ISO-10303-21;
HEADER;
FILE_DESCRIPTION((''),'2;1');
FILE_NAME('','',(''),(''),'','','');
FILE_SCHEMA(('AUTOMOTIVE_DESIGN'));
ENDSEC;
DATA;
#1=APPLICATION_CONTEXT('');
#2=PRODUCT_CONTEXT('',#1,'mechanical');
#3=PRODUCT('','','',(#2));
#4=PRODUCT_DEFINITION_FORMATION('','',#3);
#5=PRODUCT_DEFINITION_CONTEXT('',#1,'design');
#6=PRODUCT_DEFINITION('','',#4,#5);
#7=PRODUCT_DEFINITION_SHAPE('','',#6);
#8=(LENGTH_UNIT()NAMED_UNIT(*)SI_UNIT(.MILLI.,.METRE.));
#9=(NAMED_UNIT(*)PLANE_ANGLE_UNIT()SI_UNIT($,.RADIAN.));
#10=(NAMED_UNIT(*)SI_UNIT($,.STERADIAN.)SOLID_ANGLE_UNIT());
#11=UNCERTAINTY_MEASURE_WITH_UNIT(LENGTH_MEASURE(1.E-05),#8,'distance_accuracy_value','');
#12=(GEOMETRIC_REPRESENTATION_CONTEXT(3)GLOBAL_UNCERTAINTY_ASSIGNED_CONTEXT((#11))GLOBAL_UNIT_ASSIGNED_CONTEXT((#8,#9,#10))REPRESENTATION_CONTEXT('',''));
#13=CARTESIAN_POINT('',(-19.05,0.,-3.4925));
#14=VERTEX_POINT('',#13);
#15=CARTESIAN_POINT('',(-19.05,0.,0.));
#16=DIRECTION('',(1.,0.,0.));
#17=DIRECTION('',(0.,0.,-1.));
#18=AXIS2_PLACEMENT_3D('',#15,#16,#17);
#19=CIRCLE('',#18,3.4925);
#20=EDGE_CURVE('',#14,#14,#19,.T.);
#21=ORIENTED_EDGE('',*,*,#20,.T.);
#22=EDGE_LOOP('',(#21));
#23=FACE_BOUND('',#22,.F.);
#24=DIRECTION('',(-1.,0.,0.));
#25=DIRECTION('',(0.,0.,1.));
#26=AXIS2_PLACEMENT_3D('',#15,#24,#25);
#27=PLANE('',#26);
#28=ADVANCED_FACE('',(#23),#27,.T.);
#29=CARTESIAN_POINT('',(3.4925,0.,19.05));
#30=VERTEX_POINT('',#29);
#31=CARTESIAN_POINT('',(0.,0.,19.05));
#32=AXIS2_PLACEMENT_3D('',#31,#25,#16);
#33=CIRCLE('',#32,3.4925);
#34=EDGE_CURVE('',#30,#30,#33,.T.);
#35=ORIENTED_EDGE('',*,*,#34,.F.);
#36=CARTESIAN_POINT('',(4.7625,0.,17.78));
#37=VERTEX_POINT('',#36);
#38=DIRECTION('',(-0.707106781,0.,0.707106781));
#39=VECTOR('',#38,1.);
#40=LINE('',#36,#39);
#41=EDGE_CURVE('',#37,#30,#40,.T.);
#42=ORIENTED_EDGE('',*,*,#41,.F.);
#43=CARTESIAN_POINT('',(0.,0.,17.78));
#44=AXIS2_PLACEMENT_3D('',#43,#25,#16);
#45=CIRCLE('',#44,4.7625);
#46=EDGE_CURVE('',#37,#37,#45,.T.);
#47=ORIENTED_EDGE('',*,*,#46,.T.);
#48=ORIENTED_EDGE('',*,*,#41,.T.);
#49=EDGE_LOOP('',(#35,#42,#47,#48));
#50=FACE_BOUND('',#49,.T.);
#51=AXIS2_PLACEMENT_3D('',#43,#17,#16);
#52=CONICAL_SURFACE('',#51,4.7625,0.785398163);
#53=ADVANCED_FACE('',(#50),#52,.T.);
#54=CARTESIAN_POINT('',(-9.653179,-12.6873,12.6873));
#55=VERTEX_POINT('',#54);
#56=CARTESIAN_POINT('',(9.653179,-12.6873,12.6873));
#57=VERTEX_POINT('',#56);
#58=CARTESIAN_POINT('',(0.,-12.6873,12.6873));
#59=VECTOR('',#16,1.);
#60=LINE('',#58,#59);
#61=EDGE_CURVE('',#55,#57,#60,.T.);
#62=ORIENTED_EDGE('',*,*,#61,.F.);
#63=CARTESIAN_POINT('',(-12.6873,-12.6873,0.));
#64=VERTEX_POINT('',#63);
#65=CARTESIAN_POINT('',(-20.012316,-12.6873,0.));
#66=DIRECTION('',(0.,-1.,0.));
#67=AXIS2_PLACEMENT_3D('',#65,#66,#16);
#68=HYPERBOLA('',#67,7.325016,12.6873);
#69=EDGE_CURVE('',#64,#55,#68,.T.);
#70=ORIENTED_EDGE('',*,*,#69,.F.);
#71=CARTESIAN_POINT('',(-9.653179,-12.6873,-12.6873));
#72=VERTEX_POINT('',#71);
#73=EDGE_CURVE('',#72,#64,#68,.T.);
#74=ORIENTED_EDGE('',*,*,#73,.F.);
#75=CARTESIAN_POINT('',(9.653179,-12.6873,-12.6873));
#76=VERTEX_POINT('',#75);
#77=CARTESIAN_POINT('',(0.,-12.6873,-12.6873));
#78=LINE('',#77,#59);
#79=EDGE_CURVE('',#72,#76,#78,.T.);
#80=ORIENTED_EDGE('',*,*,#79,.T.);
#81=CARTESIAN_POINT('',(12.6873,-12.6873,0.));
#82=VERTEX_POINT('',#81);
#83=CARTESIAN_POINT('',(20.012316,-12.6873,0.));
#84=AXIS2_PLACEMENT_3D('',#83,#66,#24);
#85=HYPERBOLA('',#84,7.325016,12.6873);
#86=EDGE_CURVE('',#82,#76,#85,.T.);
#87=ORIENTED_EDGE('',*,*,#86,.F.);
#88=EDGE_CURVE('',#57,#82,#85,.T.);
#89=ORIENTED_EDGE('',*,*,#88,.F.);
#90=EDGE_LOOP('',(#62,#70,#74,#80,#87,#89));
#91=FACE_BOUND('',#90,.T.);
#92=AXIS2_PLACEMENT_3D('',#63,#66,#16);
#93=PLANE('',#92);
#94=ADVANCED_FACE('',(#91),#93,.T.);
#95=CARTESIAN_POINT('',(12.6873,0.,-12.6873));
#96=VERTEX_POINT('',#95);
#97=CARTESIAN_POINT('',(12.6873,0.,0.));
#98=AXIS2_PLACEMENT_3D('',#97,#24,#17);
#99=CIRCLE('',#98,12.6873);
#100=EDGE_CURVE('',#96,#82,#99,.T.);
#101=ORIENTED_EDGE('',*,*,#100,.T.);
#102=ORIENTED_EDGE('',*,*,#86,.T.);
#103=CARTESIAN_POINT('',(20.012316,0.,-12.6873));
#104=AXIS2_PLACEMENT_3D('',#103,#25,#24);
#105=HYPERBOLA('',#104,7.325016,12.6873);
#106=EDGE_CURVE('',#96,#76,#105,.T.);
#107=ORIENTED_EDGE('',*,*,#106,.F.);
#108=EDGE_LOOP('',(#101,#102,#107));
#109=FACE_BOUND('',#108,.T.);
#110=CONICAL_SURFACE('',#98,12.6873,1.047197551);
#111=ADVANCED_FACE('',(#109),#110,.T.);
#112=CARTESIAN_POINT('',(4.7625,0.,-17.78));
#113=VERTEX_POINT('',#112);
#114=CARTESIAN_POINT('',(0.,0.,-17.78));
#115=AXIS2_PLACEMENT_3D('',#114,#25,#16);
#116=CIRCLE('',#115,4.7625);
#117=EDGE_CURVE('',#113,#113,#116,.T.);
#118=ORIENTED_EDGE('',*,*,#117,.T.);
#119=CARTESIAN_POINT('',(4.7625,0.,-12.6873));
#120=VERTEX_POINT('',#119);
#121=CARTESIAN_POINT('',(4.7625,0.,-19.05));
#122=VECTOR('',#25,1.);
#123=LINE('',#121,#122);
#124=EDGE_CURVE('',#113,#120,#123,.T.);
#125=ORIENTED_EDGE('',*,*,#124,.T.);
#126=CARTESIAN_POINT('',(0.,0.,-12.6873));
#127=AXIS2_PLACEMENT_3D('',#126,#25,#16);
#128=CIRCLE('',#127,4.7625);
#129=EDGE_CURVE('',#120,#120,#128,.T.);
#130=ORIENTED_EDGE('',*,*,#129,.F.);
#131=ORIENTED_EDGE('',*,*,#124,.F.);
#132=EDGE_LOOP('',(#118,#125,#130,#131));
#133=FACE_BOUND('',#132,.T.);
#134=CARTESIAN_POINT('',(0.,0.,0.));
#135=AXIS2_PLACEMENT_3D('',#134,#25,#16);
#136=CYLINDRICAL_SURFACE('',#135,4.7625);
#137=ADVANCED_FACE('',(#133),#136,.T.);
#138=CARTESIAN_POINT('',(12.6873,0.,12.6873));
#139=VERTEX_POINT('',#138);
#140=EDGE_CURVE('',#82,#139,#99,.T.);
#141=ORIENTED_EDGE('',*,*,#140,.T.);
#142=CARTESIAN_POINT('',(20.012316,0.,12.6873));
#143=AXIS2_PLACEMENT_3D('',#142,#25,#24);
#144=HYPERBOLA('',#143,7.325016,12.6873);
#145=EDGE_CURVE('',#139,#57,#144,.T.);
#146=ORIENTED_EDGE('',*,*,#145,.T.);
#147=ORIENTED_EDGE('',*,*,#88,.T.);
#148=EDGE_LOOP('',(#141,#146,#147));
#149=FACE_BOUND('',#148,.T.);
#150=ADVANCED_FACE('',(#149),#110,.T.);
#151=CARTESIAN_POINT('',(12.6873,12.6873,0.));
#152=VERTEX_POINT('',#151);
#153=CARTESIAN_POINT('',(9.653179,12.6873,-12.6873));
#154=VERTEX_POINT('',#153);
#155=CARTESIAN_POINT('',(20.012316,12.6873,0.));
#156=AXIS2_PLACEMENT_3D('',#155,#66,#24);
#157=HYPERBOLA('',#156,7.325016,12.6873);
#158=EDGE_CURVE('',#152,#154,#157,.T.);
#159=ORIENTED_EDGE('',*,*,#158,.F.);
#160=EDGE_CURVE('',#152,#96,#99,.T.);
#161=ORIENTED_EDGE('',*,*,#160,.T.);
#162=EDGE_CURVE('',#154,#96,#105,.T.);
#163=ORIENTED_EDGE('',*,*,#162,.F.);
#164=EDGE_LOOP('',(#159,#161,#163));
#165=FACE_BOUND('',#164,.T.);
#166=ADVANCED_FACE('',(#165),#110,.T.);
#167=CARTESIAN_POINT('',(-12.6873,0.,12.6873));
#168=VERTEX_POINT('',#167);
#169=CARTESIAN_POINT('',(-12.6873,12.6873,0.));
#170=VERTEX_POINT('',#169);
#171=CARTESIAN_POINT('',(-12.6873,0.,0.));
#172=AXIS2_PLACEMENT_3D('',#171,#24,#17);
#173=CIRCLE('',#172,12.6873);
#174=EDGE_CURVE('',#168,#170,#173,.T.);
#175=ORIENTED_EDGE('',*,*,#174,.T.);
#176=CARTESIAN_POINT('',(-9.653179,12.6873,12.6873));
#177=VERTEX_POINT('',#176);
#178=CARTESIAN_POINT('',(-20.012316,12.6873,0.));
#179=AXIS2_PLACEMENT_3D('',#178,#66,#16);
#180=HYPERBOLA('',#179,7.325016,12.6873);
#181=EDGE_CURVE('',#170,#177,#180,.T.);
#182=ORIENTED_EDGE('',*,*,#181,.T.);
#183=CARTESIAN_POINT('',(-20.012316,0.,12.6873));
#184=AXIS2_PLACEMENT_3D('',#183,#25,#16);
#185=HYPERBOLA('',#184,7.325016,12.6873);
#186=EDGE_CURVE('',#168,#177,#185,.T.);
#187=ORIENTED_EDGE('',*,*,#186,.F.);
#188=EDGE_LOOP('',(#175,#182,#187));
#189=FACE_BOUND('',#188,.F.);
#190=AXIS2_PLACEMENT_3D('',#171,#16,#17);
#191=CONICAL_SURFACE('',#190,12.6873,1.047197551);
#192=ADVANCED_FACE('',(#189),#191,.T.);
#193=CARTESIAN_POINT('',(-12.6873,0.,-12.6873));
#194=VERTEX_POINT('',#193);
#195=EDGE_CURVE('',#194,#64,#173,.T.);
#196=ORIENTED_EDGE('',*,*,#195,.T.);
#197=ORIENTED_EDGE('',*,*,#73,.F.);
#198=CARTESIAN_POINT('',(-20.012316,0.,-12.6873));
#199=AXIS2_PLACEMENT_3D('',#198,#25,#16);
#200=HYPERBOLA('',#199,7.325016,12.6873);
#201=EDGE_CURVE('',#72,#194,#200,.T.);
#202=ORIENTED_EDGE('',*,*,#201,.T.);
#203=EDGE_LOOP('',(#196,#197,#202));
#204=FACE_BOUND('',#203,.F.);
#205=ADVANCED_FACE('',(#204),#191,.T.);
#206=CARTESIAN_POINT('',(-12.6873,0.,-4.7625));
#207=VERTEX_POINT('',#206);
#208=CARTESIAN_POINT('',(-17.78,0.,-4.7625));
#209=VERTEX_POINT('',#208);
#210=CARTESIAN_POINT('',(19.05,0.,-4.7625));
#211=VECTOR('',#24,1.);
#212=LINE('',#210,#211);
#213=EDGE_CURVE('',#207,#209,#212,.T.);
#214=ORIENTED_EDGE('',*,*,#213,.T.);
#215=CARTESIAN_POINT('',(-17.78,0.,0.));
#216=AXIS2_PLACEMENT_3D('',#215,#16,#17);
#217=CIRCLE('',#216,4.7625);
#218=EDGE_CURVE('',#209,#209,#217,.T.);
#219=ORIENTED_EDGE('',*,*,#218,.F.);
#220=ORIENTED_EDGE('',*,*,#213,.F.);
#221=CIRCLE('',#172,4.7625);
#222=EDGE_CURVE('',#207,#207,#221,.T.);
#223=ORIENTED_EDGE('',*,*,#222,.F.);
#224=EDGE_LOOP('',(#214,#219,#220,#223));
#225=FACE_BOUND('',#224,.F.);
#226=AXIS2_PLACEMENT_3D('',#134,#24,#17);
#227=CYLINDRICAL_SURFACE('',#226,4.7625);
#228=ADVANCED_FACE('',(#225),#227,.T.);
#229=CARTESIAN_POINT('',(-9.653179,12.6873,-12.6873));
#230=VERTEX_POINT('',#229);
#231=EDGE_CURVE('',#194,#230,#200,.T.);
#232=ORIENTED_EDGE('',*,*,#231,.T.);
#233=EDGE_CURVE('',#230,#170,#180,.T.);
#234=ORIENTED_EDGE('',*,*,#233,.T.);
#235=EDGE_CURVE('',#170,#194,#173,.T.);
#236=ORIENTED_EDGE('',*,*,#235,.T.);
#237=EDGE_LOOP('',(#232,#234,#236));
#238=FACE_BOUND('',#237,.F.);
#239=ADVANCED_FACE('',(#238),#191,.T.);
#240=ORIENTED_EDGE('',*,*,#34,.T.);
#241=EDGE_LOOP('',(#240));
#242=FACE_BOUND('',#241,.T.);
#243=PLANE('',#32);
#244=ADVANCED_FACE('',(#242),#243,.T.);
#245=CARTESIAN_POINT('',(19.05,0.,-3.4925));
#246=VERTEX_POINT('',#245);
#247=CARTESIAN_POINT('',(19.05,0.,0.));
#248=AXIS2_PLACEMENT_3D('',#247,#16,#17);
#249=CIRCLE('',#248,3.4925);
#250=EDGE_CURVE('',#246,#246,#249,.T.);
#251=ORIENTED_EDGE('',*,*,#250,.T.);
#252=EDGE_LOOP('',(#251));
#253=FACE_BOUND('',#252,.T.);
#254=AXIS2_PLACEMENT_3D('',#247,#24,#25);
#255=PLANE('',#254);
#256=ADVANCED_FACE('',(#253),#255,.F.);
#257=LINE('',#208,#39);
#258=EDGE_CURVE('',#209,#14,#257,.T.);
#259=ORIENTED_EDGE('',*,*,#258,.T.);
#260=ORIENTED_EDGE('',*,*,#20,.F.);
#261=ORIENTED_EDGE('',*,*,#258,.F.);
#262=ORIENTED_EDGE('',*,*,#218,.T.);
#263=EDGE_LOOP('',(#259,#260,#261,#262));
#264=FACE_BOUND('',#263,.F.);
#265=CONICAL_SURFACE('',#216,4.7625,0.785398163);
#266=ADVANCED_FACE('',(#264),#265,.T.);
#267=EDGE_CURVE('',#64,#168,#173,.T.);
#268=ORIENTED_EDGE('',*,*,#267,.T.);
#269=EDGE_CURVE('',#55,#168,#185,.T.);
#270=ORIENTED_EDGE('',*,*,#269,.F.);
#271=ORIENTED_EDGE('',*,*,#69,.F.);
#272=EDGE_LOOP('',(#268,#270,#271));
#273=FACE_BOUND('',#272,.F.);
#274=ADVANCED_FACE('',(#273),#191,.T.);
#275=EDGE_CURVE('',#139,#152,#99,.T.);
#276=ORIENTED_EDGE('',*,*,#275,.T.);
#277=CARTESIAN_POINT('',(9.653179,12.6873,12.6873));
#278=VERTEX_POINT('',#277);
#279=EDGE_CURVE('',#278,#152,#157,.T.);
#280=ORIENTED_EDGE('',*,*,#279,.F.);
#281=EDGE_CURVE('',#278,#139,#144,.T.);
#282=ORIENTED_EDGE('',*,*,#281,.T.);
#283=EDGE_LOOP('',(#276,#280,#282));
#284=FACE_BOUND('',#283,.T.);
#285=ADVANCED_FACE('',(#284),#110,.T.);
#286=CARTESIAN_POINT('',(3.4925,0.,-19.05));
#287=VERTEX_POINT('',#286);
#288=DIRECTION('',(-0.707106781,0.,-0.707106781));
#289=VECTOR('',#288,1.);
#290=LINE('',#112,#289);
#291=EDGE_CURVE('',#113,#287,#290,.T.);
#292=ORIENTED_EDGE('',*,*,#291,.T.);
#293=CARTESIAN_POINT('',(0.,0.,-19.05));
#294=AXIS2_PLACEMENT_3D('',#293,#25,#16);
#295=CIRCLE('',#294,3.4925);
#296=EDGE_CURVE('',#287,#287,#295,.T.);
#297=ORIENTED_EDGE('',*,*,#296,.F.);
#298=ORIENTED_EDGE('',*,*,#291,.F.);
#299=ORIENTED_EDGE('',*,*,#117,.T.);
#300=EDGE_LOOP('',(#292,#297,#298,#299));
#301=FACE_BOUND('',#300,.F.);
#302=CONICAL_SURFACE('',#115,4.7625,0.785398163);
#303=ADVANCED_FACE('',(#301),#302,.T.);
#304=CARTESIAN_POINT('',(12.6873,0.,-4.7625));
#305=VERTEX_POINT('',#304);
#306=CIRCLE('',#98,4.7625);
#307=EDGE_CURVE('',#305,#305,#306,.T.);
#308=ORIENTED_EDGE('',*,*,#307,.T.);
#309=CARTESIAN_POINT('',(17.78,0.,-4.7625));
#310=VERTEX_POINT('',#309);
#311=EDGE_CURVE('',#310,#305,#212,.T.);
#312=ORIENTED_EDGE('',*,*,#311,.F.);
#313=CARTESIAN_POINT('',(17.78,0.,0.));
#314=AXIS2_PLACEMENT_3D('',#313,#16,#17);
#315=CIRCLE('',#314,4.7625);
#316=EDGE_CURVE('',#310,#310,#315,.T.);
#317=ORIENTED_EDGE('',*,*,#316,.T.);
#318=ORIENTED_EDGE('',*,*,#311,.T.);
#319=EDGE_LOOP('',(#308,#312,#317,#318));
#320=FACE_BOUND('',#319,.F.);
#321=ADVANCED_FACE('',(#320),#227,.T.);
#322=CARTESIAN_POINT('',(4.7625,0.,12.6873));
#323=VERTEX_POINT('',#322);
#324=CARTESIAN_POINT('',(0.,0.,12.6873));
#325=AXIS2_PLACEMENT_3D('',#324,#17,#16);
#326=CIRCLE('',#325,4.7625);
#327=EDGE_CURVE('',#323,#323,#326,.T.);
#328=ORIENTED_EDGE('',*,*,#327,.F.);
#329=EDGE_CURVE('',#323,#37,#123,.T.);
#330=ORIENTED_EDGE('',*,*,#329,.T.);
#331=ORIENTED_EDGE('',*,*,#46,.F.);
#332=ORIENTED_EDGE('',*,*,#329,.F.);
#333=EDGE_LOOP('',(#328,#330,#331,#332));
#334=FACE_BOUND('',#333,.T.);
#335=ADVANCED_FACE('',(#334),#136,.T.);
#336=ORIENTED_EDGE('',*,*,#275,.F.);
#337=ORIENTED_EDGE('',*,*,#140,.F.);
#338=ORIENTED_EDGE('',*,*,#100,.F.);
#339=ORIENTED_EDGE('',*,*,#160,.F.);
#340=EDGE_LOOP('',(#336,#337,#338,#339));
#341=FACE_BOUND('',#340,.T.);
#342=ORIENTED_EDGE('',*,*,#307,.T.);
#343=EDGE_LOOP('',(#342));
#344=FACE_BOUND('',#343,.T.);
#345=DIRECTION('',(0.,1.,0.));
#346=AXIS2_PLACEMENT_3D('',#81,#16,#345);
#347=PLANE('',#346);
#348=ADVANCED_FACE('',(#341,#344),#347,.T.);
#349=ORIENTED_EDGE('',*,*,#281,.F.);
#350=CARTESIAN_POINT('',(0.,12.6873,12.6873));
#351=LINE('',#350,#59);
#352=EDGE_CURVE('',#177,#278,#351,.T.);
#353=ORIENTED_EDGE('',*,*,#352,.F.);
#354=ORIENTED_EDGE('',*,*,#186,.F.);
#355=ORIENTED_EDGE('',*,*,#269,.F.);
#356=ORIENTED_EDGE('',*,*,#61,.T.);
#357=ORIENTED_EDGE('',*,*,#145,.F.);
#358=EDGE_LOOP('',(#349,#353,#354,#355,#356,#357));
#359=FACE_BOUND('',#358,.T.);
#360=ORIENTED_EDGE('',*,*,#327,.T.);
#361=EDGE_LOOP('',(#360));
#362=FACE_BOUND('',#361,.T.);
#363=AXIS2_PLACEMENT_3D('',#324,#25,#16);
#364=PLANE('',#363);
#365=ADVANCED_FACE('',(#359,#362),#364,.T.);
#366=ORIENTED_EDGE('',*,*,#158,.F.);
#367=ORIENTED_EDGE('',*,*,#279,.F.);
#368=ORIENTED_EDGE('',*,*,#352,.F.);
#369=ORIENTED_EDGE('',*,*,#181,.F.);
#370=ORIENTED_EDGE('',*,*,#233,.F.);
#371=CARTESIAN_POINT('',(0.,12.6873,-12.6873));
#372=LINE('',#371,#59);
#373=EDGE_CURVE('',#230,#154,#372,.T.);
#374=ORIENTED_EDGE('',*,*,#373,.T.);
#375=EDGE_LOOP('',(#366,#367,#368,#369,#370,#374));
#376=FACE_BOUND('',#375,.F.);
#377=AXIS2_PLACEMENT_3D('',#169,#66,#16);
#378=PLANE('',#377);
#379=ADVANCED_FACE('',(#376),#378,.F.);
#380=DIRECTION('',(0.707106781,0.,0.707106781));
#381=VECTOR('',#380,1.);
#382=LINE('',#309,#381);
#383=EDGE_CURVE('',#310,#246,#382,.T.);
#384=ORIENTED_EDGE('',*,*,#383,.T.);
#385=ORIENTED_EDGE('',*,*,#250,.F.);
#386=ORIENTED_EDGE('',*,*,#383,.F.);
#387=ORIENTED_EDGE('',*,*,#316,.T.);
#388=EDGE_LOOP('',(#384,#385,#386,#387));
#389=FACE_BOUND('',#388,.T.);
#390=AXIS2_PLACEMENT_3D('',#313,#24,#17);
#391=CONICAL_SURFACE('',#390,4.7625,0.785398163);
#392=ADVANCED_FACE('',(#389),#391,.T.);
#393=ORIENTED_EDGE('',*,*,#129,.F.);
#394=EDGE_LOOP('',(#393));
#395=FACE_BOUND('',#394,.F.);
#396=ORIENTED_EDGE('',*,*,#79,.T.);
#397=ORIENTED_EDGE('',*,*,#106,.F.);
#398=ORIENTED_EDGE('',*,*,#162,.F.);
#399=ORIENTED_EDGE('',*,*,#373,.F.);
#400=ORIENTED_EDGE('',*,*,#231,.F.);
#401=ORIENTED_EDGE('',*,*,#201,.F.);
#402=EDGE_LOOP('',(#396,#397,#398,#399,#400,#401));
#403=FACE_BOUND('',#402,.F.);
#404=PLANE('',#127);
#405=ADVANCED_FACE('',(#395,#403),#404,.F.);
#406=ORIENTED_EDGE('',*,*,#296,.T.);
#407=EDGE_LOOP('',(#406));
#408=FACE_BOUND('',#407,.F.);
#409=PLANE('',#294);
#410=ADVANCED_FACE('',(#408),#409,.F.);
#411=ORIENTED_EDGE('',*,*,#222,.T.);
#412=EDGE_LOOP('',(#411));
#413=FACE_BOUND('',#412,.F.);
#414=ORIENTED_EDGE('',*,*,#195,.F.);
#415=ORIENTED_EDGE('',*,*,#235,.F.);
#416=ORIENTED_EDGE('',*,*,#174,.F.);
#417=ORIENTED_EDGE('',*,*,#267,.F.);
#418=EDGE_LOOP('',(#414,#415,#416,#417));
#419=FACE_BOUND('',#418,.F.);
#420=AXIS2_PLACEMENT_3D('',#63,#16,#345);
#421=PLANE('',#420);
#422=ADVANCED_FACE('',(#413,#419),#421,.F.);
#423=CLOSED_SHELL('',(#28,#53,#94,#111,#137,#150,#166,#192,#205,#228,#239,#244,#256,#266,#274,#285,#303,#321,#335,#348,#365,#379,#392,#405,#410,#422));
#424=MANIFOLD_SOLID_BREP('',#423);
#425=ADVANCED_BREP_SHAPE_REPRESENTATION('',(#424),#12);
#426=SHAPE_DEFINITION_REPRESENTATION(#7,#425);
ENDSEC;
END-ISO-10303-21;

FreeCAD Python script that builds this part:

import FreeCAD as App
import Part
import Sketcher
Q = App.Units.Quantity


def edges_at(feature, points):
    """Names of the edges that pass closest to the given points."""
    edges = feature.Shape.Edges
    near = lambda p: min(range(len(edges)), key=lambda i: edges[i].distToShape(Part.Vertex(*p))[0])
    return sorted({f"Edge{near(p) + 1}" for p in points})

doc = App.newDocument("Part")
body = doc.addObject("PartDesign::Body", "Body")

sketch1 = doc.addObject("Sketcher::SketchObject", "Sketch")
body.addObject(sketch1)
sketch1.AttachmentSupport = (doc.XY_Plane, [""])
sketch1.MapMode = "FlatFace"
sketch1.addGeometry([
    Part.LineSegment(App.Vector(-12.6873, 12.6873, 0), App.Vector(-12.6873, -12.6873, 0)),
    Part.LineSegment(App.Vector(-12.6873, -12.6873, 0), App.Vector(12.6873, -12.6873, 0)),
    Part.LineSegment(App.Vector(12.6873, -12.6873, 0), App.Vector(12.6873, 12.6873, 0)),
    Part.LineSegment(App.Vector(12.6873, 12.6873, 0), App.Vector(-12.6873, 12.6873, 0)),
], False)
sketch1.addConstraint([
    Sketcher.Constraint("Coincident", 0, 2, 1, 1),
    Sketcher.Constraint("Coincident", 1, 2, 2, 1),
    Sketcher.Constraint("Coincident", 2, 2, 3, 1),
    Sketcher.Constraint("Coincident", 3, 2, 0, 1),
    Sketcher.Constraint("Vertical", 0),
    Sketcher.Constraint("Horizontal", 1),
    Sketcher.Constraint("Vertical", 2),
    Sketcher.Constraint("Horizontal", 3),
    Sketcher.Constraint("Symmetric", 0, 2, 2, 2, -1, 1),
    Sketcher.Constraint("Equal", 3, 0),
    Sketcher.Constraint("DistanceX", 1, 1, 1, 2, Q("0.999 in")),
])
pad1 = doc.addObject("PartDesign::Pad", "Pad")
body.addObject(pad1)
pad1.Profile = sketch1
pad1.Length = Q("0.999 in")
pad1.Midplane = True

sketch2 = doc.addObject("Sketcher::SketchObject", "Sketch001")
body.addObject(sketch2)
sketch2.AttachmentSupport = (doc.YZ_Plane, [""])
sketch2.MapMode = "FlatFace"
sketch2.AttachmentOffset = App.Placement(App.Vector(0, 0, 0.4995 * 25.4), App.Rotation())
sketch2.addGeometry([
    Part.LineSegment(App.Vector(63.764, 63.764, 0), App.Vector(-63.764, 63.764, 0)),
    Part.LineSegment(App.Vector(-63.764, 63.764, 0), App.Vector(-63.764, -63.764, 0)),
    Part.LineSegment(App.Vector(-63.764, -63.764, 0), App.Vector(63.764, -63.764, 0)),
    Part.LineSegment(App.Vector(63.764, -63.764, 0), App.Vector(63.764, 63.764, 0)),
    Part.Circle(App.Vector(0, 0, 0), App.Vector(0, 0, 1), 12.6873),
], False)
sketch2.addConstraint([
    Sketcher.Constraint("Coincident", 0, 2, 1, 1),
    Sketcher.Constraint("Coincident", 1, 2, 2, 1),
    Sketcher.Constraint("Coincident", 2, 2, 3, 1),
    Sketcher.Constraint("Coincident", 3, 2, 0, 1),
    Sketcher.Constraint("Horizontal", 0),
    Sketcher.Constraint("Vertical", 1),
    Sketcher.Constraint("Horizontal", 2),
    Sketcher.Constraint("Vertical", 3),
    Sketcher.Constraint("Coincident", 4, 3, -1, 1),
    Sketcher.Constraint("Symmetric", 0, 2, 2, 2, -1, 1),
    Sketcher.Constraint("Equal", 2, 1),
    Sketcher.Constraint("Diameter", 4, Q("0.999 in")),
    Sketcher.Constraint("DistanceX", 0, 2, 0, 1, Q("127.528 mm")),
])
pocket1 = doc.addObject("PartDesign::Pocket", "Pocket")
body.addObject(pocket1)
pocket1.Profile = sketch2
pocket1.Length = 26.3746
pocket1.TaperAngle = 60
doc.recompute()

mirrored = doc.addObject("PartDesign::Mirrored", "Mirrored")
body.addObject(mirrored)
mirrored.Originals = [pocket1]
mirrored.MirrorPlane = (doc.YZ_Plane, [""])
body.Tip = mirrored

sketch3 = doc.addObject("Sketcher::SketchObject", "Sketch002")
body.addObject(sketch3)
sketch3.AttachmentSupport = (doc.XY_Plane, [""])
sketch3.MapMode = "FlatFace"
sketch3.addGeometry(Part.Circle(App.Vector(0, 0, 0), App.Vector(0, 0, 1), 4.7625), False)
sketch3.addConstraint([
    Sketcher.Constraint("Coincident", 0, 3, -1, 1),
    Sketcher.Constraint("Diameter", 0, Q("0.375 in")),
])
pocket2 = doc.addObject("PartDesign::Pocket", "Pocket001")
body.addObject(pocket2)
pocket2.Profile = sketch3
pocket2.Type = "ThroughAll"
pocket2.Midplane = True

sketch4 = doc.addObject("Sketcher::SketchObject", "Sketch003")
body.addObject(sketch4)
sketch4.AttachmentSupport = (doc.XY_Plane, [""])
sketch4.MapMode = "FlatFace"
sketch4.addGeometry(Part.Circle(App.Vector(0, 0, 0), App.Vector(0, 0, 1), 4.7625), False)
sketch4.addConstraint([
    Sketcher.Constraint("Coincident", 0, 3, -1, 1),
    Sketcher.Constraint("Diameter", 0, Q("0.375 in")),
])
pad2 = doc.addObject("PartDesign::Pad", "Pad001")
body.addObject(pad2)
pad2.Profile = sketch4
pad2.Length = Q("1.5 in")
pad2.Midplane = True
doc.recompute()

datumplane = doc.addObject("PartDesign::Plane", "DatumPlane")
body.addObject(datumplane)
datumplane.Placement = App.Placement(App.Vector(0, 0, 0), App.Rotation(App.Vector(0.707106781, 0, -0.707106781), App.Vector(0, -1, 0), App.Vector(-0.707106781, 0, -0.707106781), "ZXY"))
mirrored2 = doc.addObject("PartDesign::Mirrored", "Mirrored001")
body.addObject(mirrored2)
mirrored2.Originals = [pad2]
mirrored2.MirrorPlane = (datumplane, [""])
body.Tip = mirrored2
doc.recompute()

chamfer = doc.addObject("PartDesign::Chamfer", "Chamfer")
body.addObject(chamfer)
chamfer.Base = (mirrored2, edges_at(mirrored2, [
    (-4.763, 0, -19.05),
    (-4.763, 0, 19.05),
    (-19.05, 0, 4.763),
    (19.05, 0, 4.763),
]))
chamfer.Size = Q("0.05 in")

doc.recompute()
